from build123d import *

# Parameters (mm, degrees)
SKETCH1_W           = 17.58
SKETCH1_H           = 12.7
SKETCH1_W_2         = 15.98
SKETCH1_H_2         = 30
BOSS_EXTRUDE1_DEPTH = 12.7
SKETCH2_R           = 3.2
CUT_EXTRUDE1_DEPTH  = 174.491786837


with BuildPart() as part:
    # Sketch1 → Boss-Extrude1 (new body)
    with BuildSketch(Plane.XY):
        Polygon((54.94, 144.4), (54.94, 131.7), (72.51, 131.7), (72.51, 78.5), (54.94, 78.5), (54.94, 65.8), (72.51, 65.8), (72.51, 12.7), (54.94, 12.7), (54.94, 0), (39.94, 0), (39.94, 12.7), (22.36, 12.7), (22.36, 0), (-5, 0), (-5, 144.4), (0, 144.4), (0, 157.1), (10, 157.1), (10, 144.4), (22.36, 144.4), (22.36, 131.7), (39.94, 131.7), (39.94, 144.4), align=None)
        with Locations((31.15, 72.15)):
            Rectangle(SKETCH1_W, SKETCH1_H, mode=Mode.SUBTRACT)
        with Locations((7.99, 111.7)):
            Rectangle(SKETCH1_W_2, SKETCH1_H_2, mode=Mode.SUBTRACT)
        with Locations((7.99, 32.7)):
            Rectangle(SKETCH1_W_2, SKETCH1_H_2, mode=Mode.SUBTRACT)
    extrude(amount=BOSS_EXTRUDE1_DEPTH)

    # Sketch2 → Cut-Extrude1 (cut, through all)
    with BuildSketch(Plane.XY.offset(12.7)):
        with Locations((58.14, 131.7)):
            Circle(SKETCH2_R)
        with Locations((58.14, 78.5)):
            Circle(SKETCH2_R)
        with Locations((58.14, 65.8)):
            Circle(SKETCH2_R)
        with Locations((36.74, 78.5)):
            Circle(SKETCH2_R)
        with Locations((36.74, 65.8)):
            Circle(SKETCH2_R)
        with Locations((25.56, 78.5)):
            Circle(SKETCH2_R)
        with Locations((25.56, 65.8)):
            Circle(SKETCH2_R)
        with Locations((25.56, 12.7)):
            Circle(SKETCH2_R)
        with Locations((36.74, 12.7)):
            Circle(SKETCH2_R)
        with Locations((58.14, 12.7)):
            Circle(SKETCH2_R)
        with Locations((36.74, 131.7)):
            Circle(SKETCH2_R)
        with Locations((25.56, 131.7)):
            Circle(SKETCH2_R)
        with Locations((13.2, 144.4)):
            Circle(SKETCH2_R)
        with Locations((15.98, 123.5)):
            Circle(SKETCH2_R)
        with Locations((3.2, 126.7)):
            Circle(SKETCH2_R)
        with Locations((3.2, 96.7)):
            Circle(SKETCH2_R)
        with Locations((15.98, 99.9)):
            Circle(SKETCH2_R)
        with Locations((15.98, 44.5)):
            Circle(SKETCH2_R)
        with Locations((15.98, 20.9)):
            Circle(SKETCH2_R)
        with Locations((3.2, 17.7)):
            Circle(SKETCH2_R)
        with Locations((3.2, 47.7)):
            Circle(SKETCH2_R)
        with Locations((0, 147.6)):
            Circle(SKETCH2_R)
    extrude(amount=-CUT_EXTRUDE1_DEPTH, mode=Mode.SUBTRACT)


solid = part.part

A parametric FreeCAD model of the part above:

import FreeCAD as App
import Part
import Sketcher
from FreeCAD import Vector


def add_polygon(sketch, points):
    """Adds a closed chain of lines whose ends are joined by coincident constraints."""
    first, n = sketch.GeometryCount, len(points)
    for a, b in zip(points, points[1:] + points[:1]):
        sketch.addGeometry(Part.LineSegment(App.Vector(*a, 0), App.Vector(*b, 0)), False)
    for i in range(n):
        sketch.addConstraint(Sketcher.Constraint("Coincident", first + i, 2, first + (i + 1) % n, 1))

doc = App.newDocument("Part")
body = doc.addObject("PartDesign::Body", "Body")

# Sketch on XY plane
sketch1 = body.newObject("Sketcher::SketchObject", "Sketch")
sketch1.AttachmentSupport = (doc.getObject("XY_Plane"), [""])
sketch1.MapMode = "FlatFace"
add_polygon(sketch1, [(55, 132), (55, 144), (40, 144), (40, 132), (22, 132), (22, 144), (10, 144), (10, 157), (0, 157), (0, 144), (-5, 144), (-5, 0), (22, 0), (22, 13), (40, 13), (40, 0), (55, 0), (55, 13), (73, 13), (73, 66), (55, 66), (55, 78), (73, 78), (73, 132)])  # lines 0-23
add_polygon(sketch1, [(22, 66), (22, 78), (40, 78), (40, 66)])  # lines 24-27
add_polygon(sketch1, [(0, 18), (0, 48), (16, 48), (16, 18)])  # lines 28-31
add_polygon(sketch1, [(0, 97), (0, 127), (16, 127), (16, 97)])  # lines 32-35
sketch1.addConstraint([
    Sketcher.Constraint("Vertical", 0),
    Sketcher.Constraint("Horizontal", 1),
    Sketcher.Constraint("Vertical", 2),
    Sketcher.Constraint("Horizontal", 3),
    Sketcher.Constraint("Vertical", 4),
    Sketcher.Constraint("Horizontal", 5),
    Sketcher.Constraint("Vertical", 6),
    Sketcher.Constraint("Horizontal", 7),
    Sketcher.Constraint("Vertical", 8),
    Sketcher.Constraint("Horizontal", 9),
    Sketcher.Constraint("Vertical", 10),
    Sketcher.Constraint("Horizontal", 11),
    Sketcher.Constraint("Vertical", 12),
    Sketcher.Constraint("Horizontal", 13),
    Sketcher.Constraint("Vertical", 14),
    Sketcher.Constraint("Horizontal", 15),
    Sketcher.Constraint("Vertical", 16),
    Sketcher.Constraint("Horizontal", 17),
    Sketcher.Constraint("Vertical", 18),
    Sketcher.Constraint("Horizontal", 19),
    Sketcher.Constraint("Vertical", 20),
    Sketcher.Constraint("Horizontal", 21),
    Sketcher.Constraint("Vertical", 22),
    Sketcher.Constraint("Horizontal", 23),
    Sketcher.Constraint("Vertical", 24),
    Sketcher.Constraint("Horizontal", 25),
    Sketcher.Constraint("Vertical", 26),
    Sketcher.Constraint("Horizontal", 27),
    Sketcher.Constraint("Vertical", 28),
    Sketcher.Constraint("Horizontal", 29),
    Sketcher.Constraint("Vertical", 30),
    Sketcher.Constraint("Horizontal", 31),
    Sketcher.Constraint("Vertical", 32),
    Sketcher.Constraint("Horizontal", 33),
    Sketcher.Constraint("Vertical", 34),
    Sketcher.Constraint("Horizontal", 35),
    Sketcher.Constraint("PointOnObject", 7, 2, -2),
    Sketcher.Constraint("PointOnObject", 10, 2, -1),
    Sketcher.Constraint("PointOnObject", 14, 2, -1),
    Sketcher.Constraint("PointOnObject", 28, 2, -2),
    Sketcher.Constraint("PointOnObject", 32, 2, -2),
    Sketcher.Constraint("Horizontal", 1, 2, 4, 2),
    Sketcher.Constraint("Horizontal", 5, 2, 8, 2),
    Sketcher.Constraint("Horizontal", 13, 2, 16, 2),
    Sketcher.Constraint("Horizontal", 3, 2, 22, 2),
    Sketcher.Constraint("Horizontal", 21, 2, 24, 2),
    Sketcher.Constraint("Horizontal", 19, 2, 26, 2),
    Sketcher.Constraint("Vertical", 4, 2, 11, 2),
    Sketcher.Constraint("Vertical", 2, 2, 13, 2),
    Sketcher.Constraint("Vertical", 0, 2, 15, 2),
    Sketcher.Constraint("Vertical", 16, 2, 19, 2),
    Sketcher.Constraint("Vertical", 18, 2, 21, 2),
    Sketcher.Constraint("Vertical", 12, 2, 24, 2),
    Sketcher.Constraint("Vertical", 14, 2, 25, 2),
    Sketcher.Constraint("Vertical", 30, 2, 33, 2),
    Sketcher.Constraint("Equal", 4, 6),
    Sketcher.Constraint("Equal", 8, 12),
    Sketcher.Constraint("Equal", 16, 20),
    Sketcher.Constraint("Equal", 30, 32),
    Sketcher.Constraint("DistanceX", 1, 2, 1, 1, 15.0),
    Sketcher.Constraint("DistanceX", 7, 2, 7, 1, 10.0),
    Sketcher.Constraint("DistanceX", 9, 2, 9, 1, 5.0),
    Sketcher.Constraint("DistanceY", 28, 1, 28, 2, 30.0),
    Sketcher.Constraint("DistanceY", 0, 1, 0, 2, 12.7),
    Sketcher.Constraint("DistanceY", 10, 2, 10, 1, 144.4),
    Sketcher.Constraint("DistanceY", 18, 1, 18, 2, 53.1),
    Sketcher.Constraint("DistanceY", 12, 2, 28, 2, 35.0),
    Sketcher.Constraint("DistanceY", 32, 2, 3, 2, 5.0),
    Sketcher.Constraint("DistanceX", 3, 2, 3, 1, 17.58),
    Sketcher.Constraint("DistanceX", 5, 2, 5, 1, 12.36),
    Sketcher.Constraint("DistanceX", 17, 1, 17, 2, 17.57),
    Sketcher.Constraint("DistanceX", 29, 1, 29, 2, 15.98),
])
pad1 = body.newObject("PartDesign::Pad", "Pad")
pad1.Profile = sketch1
pad1.Length = 12.7

# Sketch on XY plane
sketch2 = body.newObject("Sketcher::SketchObject", "Sketch001")
sketch2.AttachmentSupport = (doc.getObject("XY_Plane"), [""])
sketch2.MapMode = "FlatFace"
sketch2.AttachmentOffset = App.Placement(Vector(0, 0, 12.7), App.Rotation())
sketch2.addGeometry([
    Part.Circle(Vector(58.1, 131.7, 0), Vector(0, 0, 1), 3.2),  # 0
    Part.Circle(Vector(58.1, 78.5, 0), Vector(0, 0, 1), 3.2),  # 1
    Part.Circle(Vector(58.1, 65.8, 0), Vector(0, 0, 1), 3.2),  # 2
    Part.Circle(Vector(36.7, 78.5, 0), Vector(0, 0, 1), 3.2),  # 3
    Part.Circle(Vector(36.7, 65.8, 0), Vector(0, 0, 1), 3.2),  # 4
    Part.Circle(Vector(25.6, 78.5, 0), Vector(0, 0, 1), 3.2),  # 5
    Part.Circle(Vector(25.6, 65.8, 0), Vector(0, 0, 1), 3.2),  # 6
    Part.Circle(Vector(25.6, 12.7, 0), Vector(0, 0, 1), 3.2),  # 7
    Part.Circle(Vector(36.7, 12.7, 0), Vector(0, 0, 1), 3.2),  # 8
    Part.Circle(Vector(58.1, 12.7, 0), Vector(0, 0, 1), 3.2),  # 9
    Part.Circle(Vector(36.7, 131.7, 0), Vector(0, 0, 1), 3.2),  # 10
    Part.Circle(Vector(25.6, 131.7, 0), Vector(0, 0, 1), 3.2),  # 11
    Part.Circle(Vector(13.2, 144.4, 0), Vector(0, 0, 1), 3.2),  # 12
    Part.Circle(Vector(16, 123.5, 0), Vector(0, 0, 1), 3.2),  # 13
    Part.Circle(Vector(3.2, 126.7, 0), Vector(0, 0, 1), 3.2),  # 14
    Part.Circle(Vector(3.2, 96.7, 0), Vector(0, 0, 1), 3.2),  # 15
    Part.Circle(Vector(16, 99.9, 0), Vector(0, 0, 1), 3.2),  # 16
    Part.Circle(Vector(16, 44.5, 0), Vector(0, 0, 1), 3.2),  # 17
    Part.Circle(Vector(16, 20.9, 0), Vector(0, 0, 1), 3.2),  # 18
    Part.Circle(Vector(3.2, 17.7, 0), Vector(0, 0, 1), 3.2),  # 19
    Part.Circle(Vector(3.2, 47.7, 0), Vector(0, 0, 1), 3.2),  # 20
    Part.Circle(Vector(0, 147.6, 0), Vector(0, 0, 1), 3.2),  # 21
], False)
sketch2.addConstraint([
    Sketcher.Constraint("Equal", 0, 1),
    Sketcher.Constraint("Equal", 1, 2),
    Sketcher.Constraint("Equal", 2, 3),
    Sketcher.Constraint("Equal", 3, 4),
    Sketcher.Constraint("Equal", 4, 5),
    Sketcher.Constraint("Equal", 5, 6),
    Sketcher.Constraint("Equal", 6, 7),
    Sketcher.Constraint("Equal", 7, 8),
    Sketcher.Constraint("Equal", 8, 9),
    Sketcher.Constraint("Equal", 9, 10),
    Sketcher.Constraint("Equal", 10, 11),
    Sketcher.Constraint("Equal", 11, 12),
    Sketcher.Constraint("Equal", 12, 13),
    Sketcher.Constraint("Equal", 13, 14),
    Sketcher.Constraint("Equal", 14, 15),
    Sketcher.Constraint("Equal", 15, 16),
    Sketcher.Constraint("Equal", 16, 17),
    Sketcher.Constraint("Equal", 17, 18),
    Sketcher.Constraint("Equal", 18, 19),
    Sketcher.Constraint("Equal", 19, 20),
    Sketcher.Constraint("Equal", 20, 21),
    Sketcher.Constraint("PointOnObject", 21, 3, -2),
    Sketcher.Constraint("Horizontal", 1, 3, 3, 3),
    Sketcher.Constraint("Horizontal", 2, 3, 4, 3),
    Sketcher.Constraint("Horizontal", 3, 3, 5, 3),
    Sketcher.Constraint("Horizontal", 4, 3, 6, 3),
    Sketcher.Constraint("Horizontal", 7, 3, 8, 3),
    Sketcher.Constraint("Horizontal", 8, 3, 9, 3),
    Sketcher.Constraint("Horizontal", 0, 3, 10, 3),
    Sketcher.Constraint("Horizontal", 10, 3, 11, 3),
    Sketcher.Constraint("Vertical", 0, 3, 1, 3),
    Sketcher.Constraint("Vertical", 1, 3, 2, 3),
    Sketcher.Constraint("Vertical", 3, 3, 4, 3),
    Sketcher.Constraint("Vertical", 5, 3, 6, 3),
    Sketcher.Constraint("Vertical", 6, 3, 7, 3),
    Sketcher.Constraint("Vertical", 4, 3, 8, 3),
    Sketcher.Constraint("Vertical", 2, 3, 9, 3),
    Sketcher.Constraint("Vertical", 8, 3, 10, 3),
    Sketcher.Constraint("Vertical", 7, 3, 11, 3),
    Sketcher.Constraint("Vertical", 14, 3, 15, 3),
    Sketcher.Constraint("Vertical", 13, 3, 16, 3),
    Sketcher.Constraint("Vertical", 16, 3, 17, 3),
    Sketcher.Constraint("Vertical", 17, 3, 18, 3),
    Sketcher.Constraint("Vertical", 15, 3, 19, 3),
    Sketcher.Constraint("Vertical", 19, 3, 20, 3),
    Sketcher.Constraint("Diameter", 0, 6.4),
    Sketcher.Constraint("DistanceY", 5, 3, 13, 3, 45.0),
    Sketcher.Constraint("DistanceX", 14, 3, 12, 3, 10.0),
    Sketcher.Constraint("DistanceY", 14, 3, 11, 3, 5.0),
    Sketcher.Constraint("DistanceY", 15, 3, 14, 3, 30.0),
    Sketcher.Constraint("DistanceY", 17, 3, 5, 3, 34.0),
    Sketcher.Constraint("DistanceY", 7, 3, 19, 3, 5.0),
    Sketcher.Constraint("DistanceY", 19, 3, 20, 3, 30.0),
    Sketcher.Constraint("DistanceY", -1, 1, 0, 3, 131.7),
    Sketcher.Constraint("DistanceY", -1, 1, 1, 3, 78.5),
    Sketcher.Constraint("DistanceY", -1, 1, 2, 3, 65.8),
    Sketcher.Constraint("DistanceY", -1, 1, 7, 3, 12.7),
    Sketcher.Constraint("DistanceX", -1, 1, 12, 3, 13.2),
    Sketcher.Constraint("DistanceY", -1, 1, 12, 3, 144.4),
    Sketcher.Constraint("DistanceY", -1, 1, 16, 3, 99.9),
    Sketcher.Constraint("DistanceY", -1, 1, 18, 3, 20.9),
    Sketcher.Constraint("DistanceY", -1, 1, 21, 3, 147.6),
    Sketcher.Constraint("DistanceX", 3, 3, 1, 3, 21.4),
    Sketcher.Constraint("DistanceX", -1, 1, 0, 3, 58.14),
    Sketcher.Constraint("DistanceX", -1, 1, 5, 3, 25.56),
    Sketcher.Constraint("DistanceX", -1, 1, 13, 3, 15.98),
])
pocket1 = body.newObject("PartDesign::Pocket", "Pocket")
pocket1.Profile = sketch2
pocket1.Type = "ThroughAll"

doc.recompute()
